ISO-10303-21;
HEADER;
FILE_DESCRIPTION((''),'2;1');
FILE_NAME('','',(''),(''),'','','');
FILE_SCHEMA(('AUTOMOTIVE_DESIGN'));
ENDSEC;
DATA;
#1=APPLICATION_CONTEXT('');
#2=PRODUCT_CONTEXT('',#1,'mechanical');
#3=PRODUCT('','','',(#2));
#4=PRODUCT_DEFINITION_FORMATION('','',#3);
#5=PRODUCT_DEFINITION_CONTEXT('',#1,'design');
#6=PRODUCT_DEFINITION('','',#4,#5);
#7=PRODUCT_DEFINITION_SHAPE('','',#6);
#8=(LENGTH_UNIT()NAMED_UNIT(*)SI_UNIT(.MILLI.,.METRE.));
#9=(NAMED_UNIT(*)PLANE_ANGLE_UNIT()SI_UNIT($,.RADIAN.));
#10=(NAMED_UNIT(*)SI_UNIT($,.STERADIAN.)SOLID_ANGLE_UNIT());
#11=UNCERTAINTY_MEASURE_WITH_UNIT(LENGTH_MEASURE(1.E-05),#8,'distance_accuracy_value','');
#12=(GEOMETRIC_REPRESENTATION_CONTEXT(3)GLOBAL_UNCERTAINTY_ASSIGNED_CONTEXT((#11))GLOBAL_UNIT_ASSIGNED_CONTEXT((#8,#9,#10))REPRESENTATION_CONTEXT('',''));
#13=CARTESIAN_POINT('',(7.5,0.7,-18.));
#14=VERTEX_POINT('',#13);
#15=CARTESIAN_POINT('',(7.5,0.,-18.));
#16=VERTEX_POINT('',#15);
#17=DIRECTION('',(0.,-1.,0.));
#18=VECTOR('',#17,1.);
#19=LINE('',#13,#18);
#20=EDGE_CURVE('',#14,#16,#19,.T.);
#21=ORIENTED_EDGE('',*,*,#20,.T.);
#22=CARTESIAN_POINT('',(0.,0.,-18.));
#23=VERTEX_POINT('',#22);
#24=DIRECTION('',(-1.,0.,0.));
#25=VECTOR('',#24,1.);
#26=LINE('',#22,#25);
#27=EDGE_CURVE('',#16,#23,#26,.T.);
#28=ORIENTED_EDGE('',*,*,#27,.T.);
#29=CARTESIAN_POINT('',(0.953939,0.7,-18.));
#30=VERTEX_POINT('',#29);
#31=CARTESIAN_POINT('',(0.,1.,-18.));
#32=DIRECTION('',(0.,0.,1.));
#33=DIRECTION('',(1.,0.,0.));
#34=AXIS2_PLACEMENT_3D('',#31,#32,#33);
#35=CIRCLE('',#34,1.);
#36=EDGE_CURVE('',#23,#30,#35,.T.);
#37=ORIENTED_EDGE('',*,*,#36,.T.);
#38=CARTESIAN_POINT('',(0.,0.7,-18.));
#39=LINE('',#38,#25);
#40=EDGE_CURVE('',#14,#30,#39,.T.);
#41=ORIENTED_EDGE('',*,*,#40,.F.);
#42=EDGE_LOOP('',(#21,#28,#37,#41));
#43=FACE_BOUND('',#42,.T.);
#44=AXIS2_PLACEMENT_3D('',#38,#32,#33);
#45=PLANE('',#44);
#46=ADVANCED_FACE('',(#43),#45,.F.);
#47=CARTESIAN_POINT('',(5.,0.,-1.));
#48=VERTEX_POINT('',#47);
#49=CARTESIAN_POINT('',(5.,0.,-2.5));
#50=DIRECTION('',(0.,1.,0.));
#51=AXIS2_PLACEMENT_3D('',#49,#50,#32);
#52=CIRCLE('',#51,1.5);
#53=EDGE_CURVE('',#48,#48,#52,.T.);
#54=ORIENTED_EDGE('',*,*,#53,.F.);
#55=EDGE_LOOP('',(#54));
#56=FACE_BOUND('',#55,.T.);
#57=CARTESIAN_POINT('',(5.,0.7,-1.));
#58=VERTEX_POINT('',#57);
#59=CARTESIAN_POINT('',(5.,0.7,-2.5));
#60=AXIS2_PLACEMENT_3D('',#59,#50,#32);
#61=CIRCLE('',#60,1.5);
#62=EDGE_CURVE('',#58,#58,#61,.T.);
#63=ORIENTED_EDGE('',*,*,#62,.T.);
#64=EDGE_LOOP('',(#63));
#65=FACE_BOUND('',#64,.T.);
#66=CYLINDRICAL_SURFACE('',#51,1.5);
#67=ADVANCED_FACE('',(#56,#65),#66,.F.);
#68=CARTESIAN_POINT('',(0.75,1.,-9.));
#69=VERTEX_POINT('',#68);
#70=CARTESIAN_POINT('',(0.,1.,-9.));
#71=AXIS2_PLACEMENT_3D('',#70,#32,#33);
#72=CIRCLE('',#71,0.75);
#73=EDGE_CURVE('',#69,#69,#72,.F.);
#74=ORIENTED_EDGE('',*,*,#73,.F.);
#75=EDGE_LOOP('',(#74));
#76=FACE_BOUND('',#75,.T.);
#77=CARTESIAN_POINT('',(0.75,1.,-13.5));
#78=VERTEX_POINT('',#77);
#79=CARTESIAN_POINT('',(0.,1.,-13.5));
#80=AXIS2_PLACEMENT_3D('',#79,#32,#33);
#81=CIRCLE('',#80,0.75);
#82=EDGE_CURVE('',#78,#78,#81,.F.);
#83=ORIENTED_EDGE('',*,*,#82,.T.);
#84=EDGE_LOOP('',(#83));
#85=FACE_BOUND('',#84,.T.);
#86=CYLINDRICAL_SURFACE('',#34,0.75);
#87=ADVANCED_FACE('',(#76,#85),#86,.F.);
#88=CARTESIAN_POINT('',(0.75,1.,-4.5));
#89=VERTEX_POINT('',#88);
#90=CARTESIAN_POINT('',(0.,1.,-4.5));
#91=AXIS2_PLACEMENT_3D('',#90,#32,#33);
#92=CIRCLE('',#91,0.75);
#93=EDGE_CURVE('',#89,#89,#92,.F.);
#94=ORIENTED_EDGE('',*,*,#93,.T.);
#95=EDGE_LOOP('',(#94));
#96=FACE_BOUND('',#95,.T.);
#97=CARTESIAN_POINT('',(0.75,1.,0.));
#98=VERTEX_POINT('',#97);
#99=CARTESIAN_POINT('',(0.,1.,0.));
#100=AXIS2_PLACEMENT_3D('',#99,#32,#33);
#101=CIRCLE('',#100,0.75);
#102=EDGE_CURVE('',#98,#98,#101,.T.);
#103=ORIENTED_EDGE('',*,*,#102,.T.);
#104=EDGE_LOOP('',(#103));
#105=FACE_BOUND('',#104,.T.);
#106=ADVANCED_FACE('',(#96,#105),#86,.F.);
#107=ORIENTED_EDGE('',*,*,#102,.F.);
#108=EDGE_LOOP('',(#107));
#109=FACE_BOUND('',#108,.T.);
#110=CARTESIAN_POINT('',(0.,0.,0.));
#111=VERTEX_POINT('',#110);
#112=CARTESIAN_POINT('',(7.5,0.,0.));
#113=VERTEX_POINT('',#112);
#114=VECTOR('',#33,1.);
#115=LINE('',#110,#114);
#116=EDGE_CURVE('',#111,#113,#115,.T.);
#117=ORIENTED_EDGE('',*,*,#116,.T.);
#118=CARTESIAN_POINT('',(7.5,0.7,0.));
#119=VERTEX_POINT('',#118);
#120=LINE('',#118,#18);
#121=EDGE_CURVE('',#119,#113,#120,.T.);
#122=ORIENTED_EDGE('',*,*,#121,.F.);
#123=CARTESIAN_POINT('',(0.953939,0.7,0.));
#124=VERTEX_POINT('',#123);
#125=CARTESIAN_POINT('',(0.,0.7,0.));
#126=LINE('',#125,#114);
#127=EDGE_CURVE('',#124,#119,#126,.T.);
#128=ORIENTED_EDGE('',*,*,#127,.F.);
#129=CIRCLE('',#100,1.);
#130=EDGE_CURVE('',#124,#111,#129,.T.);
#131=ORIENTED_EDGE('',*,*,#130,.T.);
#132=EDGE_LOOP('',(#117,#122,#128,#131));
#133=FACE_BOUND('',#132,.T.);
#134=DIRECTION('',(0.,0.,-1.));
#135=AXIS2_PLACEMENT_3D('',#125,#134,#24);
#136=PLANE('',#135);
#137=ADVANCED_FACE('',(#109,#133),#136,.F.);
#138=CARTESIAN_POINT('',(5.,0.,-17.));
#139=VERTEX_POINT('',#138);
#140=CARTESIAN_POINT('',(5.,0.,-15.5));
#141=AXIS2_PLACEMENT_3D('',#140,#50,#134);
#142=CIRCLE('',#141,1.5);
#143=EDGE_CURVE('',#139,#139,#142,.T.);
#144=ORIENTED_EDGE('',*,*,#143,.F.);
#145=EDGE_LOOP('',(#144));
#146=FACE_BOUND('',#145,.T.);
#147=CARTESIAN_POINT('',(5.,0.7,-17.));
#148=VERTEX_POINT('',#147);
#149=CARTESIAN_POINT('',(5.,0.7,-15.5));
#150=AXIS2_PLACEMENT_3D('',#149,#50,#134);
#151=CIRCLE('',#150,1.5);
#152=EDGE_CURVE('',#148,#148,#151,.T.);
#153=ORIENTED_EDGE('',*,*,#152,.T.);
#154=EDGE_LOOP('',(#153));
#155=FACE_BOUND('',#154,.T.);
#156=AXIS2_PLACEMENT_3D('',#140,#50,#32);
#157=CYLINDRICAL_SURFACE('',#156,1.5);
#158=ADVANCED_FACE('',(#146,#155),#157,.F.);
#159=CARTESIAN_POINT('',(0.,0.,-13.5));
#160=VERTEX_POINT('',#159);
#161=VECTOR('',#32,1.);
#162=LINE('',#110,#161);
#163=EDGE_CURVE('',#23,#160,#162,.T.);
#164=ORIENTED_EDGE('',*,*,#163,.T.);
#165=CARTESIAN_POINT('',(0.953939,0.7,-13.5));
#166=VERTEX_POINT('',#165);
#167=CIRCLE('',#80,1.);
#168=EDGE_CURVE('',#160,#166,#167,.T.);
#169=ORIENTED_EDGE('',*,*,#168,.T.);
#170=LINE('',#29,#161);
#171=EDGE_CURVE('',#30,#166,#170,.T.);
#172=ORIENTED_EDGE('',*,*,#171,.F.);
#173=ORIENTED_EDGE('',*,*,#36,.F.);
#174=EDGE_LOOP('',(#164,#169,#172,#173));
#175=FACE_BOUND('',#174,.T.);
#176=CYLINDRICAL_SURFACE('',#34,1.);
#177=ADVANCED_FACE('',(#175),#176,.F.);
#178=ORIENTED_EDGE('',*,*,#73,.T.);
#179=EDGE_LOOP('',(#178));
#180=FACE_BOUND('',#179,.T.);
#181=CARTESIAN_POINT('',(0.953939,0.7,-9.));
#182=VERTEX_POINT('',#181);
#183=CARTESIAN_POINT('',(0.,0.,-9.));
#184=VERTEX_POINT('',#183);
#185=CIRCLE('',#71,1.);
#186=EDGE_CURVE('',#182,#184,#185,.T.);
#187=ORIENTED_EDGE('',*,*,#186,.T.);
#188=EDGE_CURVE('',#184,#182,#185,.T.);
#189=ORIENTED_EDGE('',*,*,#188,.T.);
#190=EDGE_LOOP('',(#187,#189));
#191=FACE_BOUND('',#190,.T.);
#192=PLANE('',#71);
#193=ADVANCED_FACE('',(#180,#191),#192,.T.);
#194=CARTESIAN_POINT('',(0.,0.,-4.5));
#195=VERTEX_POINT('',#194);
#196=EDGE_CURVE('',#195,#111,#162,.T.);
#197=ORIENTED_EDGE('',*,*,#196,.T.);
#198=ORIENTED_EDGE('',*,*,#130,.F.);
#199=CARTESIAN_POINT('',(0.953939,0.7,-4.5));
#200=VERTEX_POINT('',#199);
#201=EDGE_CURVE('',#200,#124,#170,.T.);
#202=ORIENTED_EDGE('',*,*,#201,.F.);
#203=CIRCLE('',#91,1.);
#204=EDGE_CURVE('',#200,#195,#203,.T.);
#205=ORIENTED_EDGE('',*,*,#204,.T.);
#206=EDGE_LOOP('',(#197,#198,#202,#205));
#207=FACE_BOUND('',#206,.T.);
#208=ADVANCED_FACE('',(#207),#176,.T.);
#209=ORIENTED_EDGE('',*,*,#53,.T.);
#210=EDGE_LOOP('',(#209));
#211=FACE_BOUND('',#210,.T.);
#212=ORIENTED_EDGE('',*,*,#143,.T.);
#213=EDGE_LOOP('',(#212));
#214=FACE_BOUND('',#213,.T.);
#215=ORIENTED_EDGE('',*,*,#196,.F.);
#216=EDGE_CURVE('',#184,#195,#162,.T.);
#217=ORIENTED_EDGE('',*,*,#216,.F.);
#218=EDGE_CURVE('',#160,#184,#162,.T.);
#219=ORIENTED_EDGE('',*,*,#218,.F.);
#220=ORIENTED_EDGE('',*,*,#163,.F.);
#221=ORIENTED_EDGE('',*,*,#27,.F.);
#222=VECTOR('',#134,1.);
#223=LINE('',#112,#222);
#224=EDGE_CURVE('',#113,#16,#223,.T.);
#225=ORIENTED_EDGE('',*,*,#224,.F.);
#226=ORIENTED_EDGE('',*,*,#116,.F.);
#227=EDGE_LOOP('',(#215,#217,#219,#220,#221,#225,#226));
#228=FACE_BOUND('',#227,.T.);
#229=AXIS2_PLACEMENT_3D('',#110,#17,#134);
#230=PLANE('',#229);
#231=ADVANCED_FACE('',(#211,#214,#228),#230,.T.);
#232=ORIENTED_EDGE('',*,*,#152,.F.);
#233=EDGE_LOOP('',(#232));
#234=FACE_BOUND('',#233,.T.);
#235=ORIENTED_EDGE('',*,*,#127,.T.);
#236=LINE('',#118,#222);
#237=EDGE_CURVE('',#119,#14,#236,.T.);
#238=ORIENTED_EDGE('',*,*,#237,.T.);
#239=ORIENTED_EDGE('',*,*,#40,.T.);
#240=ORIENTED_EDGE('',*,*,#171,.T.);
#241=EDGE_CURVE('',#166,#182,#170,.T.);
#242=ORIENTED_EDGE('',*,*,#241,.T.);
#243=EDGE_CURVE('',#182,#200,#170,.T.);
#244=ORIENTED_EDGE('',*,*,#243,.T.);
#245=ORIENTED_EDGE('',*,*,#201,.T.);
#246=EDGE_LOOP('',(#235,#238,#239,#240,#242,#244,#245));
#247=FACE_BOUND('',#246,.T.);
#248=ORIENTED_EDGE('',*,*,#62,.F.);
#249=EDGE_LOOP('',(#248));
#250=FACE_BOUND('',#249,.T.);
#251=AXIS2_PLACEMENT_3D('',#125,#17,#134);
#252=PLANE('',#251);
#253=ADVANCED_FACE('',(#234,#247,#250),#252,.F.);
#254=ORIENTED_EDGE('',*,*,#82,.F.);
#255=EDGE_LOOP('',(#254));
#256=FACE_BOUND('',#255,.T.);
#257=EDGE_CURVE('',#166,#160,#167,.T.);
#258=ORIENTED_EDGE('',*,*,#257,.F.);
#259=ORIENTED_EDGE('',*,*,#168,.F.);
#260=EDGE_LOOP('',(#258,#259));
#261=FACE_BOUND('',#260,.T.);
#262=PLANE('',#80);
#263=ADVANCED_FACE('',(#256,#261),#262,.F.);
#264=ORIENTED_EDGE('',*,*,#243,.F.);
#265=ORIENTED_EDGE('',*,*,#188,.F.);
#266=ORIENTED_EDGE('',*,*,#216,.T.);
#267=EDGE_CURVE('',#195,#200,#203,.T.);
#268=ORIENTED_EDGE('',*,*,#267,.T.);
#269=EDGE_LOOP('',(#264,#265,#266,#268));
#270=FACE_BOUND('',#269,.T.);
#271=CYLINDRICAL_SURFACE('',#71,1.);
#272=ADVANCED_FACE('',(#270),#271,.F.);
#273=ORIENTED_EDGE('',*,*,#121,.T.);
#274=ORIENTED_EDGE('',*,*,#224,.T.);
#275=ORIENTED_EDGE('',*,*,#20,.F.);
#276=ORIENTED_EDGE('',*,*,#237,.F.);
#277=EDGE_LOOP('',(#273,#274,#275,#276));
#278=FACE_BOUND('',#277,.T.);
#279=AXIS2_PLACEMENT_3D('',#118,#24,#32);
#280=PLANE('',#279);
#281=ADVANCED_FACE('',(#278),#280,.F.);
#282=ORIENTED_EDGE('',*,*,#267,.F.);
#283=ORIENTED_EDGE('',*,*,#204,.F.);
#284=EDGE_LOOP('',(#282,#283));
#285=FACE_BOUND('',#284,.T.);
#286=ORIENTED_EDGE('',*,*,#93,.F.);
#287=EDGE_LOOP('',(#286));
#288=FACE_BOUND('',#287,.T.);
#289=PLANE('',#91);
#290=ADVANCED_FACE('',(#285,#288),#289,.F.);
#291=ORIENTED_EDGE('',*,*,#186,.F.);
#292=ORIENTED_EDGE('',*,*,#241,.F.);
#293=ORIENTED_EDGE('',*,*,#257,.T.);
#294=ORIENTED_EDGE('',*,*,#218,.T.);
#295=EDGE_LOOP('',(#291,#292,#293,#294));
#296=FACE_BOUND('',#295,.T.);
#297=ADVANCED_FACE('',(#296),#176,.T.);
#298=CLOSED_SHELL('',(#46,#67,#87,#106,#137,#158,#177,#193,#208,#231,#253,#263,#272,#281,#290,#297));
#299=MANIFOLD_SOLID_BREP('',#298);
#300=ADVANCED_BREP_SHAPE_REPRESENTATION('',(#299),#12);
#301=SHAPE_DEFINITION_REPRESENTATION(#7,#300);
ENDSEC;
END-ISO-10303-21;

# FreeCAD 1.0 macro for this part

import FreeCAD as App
import Part
import Sketcher
Q = App.Units.Quantity

doc = App.newDocument("Part")
body = doc.addObject("PartDesign::Body", "Body")

sketch1 = doc.addObject("Sketcher::SketchObject", "Sketch")
body.addObject(sketch1)
sketch1.AttachmentSupport = (doc.XZ_Plane, [""])
sketch1.MapMode = "FlatFace"
sketch1.addGeometry([
    Part.LineSegment(App.Vector(0, -18, 0), App.Vector(0, 0, 0)),
    Part.LineSegment(App.Vector(0, 0, 0), App.Vector(8, 0, 0)),
    Part.LineSegment(App.Vector(8, 0, 0), App.Vector(8, -18, 0)),
    Part.LineSegment(App.Vector(8, -18, 0), App.Vector(0, -18, 0)),
], False)
sketch1.addConstraint([
    Sketcher.Constraint("Coincident", 0, 2, 1, 1),
    Sketcher.Constraint("Coincident", 1, 2, 2, 1),
    Sketcher.Constraint("Coincident", 2, 2, 3, 1),
    Sketcher.Constraint("Coincident", 3, 2, 0, 1),
    Sketcher.Constraint("Vertical", 0),
    Sketcher.Constraint("Horizontal", 1),
    Sketcher.Constraint("Vertical", 2),
    Sketcher.Constraint("Horizontal", 3),
    Sketcher.Constraint("Coincident", 0, 2, -1, 1),
    Sketcher.Constraint("DistanceY", 0, 1, 0, 2, Q("18 mm")),
    Sketcher.Constraint("DistanceX", 1, 1, 1, 2, Q("7.5 mm")),
])
pad1 = doc.addObject("PartDesign::Pad", "Pad")
body.addObject(pad1)
pad1.Profile = sketch1
pad1.Length = 0.7
pad1.Reversed = True

sketch2 = doc.addObject("Sketcher::SketchObject", "Sketch001")
body.addObject(sketch2)
sketch2.AttachmentSupport = (doc.XY_Plane, [""])
sketch2.MapMode = "FlatFace"
sketch2.addGeometry(Part.Circle(App.Vector(0, 1, 0), App.Vector(0, 0, 1), 1), False)
sketch2.addConstraint([
    Sketcher.Constraint("PointOnObject", 0, 3, -2),
    Sketcher.Constraint("Diameter", 0, Q("2 mm")),
    Sketcher.Constraint("DistanceY", -1, 1, 0, 3, Q("1 mm")),
])
pad2 = doc.addObject("PartDesign::Pad", "Pad001")
body.addObject(pad2)
pad2.Profile = sketch2
pad2.Length = 18
pad2.Reversed = True

sketch3 = doc.addObject("Sketcher::SketchObject", "Sketch002")
body.addObject(sketch3)
sketch3.AttachmentSupport = (doc.XY_Plane, [""])
sketch3.MapMode = "FlatFace"
sketch3.addGeometry(Part.Circle(App.Vector(0, 1, 0), App.Vector(0, 0, 1), 0.8), False)
sketch3.addConstraint([
    Sketcher.Constraint("PointOnObject", 0, 3, -2),
    Sketcher.Constraint("Diameter", 0, Q("1.5 mm")),
    Sketcher.Constraint("DistanceY", -1, 1, 0, 3, Q("1 mm")),
])
pocket1 = doc.addObject("PartDesign::Pocket", "Pocket")
body.addObject(pocket1)
pocket1.Profile = sketch3
pocket1.Type = "ThroughAll"

sketch4 = doc.addObject("Sketcher::SketchObject", "Sketch003")
body.addObject(sketch4)
sketch4.AttachmentSupport = (doc.XY_Plane, [""])
sketch4.MapMode = "FlatFace"
sketch4.AttachmentOffset = App.Placement(App.Vector(0, 0, -4.5), App.Rotation())
sketch4.addGeometry(Part.Circle(App.Vector(0, 1, 0), App.Vector(0, 0, 1), 1), False)
sketch4.addConstraint([
    Sketcher.Constraint("PointOnObject", 0, 3, -2),
    Sketcher.Constraint("Diameter", 0, Q("2 mm")),
    Sketcher.Constraint("DistanceY", -1, 1, 0, 3, Q("1 mm")),
])
pocket2 = doc.addObject("PartDesign::Pocket", "Pocket001")
body.addObject(pocket2)
pocket2.Profile = sketch4
pocket2.Length = 4.5
doc.recompute()

linearpattern = doc.addObject("PartDesign::LinearPattern", "LinearPattern")
body.addObject(linearpattern)
linearpattern.Originals = [pocket2]
linearpattern.Direction = (doc.Z_Axis, [""])
linearpattern.Mode = "offset"
linearpattern.Offset = 9
linearpattern.Occurrences = 2
linearpattern.Reversed = True
body.Tip = linearpattern

sketch5 = doc.addObject("Sketcher::SketchObject", "Sketch004")
body.addObject(sketch5)
sketch5.AttachmentSupport = (doc.XZ_Plane, [""])
sketch5.MapMode = "FlatFace"
sketch5.AttachmentOffset = App.Placement(App.Vector(0, 0, -0.7), App.Rotation())
sketch5.addGeometry([
    Part.Circle(App.Vector(5, -2.5, 0), App.Vector(0, 0, 1), 1.5),
    Part.Circle(App.Vector(5, -15.5, 0), App.Vector(0, 0, 1), 1.5),
], False)
sketch5.addConstraint([
    Sketcher.Constraint("Equal", 0, 1),
    Sketcher.Constraint("Vertical", 0, 3, 1, 3),
    Sketcher.Constraint("Diameter", 0, Q("3 mm")),
    Sketcher.Constraint("DistanceX", -1, 1, 0, 3, Q("5 mm")),
    Sketcher.Constraint("DistanceY", 1, 3, 0, 3, Q("13 mm")),
    Sketcher.Constraint("DistanceY", 0, 3, -1, 1, Q("2.5 mm")),
])
pocket3 = doc.addObject("PartDesign::Pocket", "Pocket002")
body.addObject(pocket3)
pocket3.Profile = sketch5
pocket3.Type = "ThroughAll"
pocket3.Reversed = True

doc.recompute()
